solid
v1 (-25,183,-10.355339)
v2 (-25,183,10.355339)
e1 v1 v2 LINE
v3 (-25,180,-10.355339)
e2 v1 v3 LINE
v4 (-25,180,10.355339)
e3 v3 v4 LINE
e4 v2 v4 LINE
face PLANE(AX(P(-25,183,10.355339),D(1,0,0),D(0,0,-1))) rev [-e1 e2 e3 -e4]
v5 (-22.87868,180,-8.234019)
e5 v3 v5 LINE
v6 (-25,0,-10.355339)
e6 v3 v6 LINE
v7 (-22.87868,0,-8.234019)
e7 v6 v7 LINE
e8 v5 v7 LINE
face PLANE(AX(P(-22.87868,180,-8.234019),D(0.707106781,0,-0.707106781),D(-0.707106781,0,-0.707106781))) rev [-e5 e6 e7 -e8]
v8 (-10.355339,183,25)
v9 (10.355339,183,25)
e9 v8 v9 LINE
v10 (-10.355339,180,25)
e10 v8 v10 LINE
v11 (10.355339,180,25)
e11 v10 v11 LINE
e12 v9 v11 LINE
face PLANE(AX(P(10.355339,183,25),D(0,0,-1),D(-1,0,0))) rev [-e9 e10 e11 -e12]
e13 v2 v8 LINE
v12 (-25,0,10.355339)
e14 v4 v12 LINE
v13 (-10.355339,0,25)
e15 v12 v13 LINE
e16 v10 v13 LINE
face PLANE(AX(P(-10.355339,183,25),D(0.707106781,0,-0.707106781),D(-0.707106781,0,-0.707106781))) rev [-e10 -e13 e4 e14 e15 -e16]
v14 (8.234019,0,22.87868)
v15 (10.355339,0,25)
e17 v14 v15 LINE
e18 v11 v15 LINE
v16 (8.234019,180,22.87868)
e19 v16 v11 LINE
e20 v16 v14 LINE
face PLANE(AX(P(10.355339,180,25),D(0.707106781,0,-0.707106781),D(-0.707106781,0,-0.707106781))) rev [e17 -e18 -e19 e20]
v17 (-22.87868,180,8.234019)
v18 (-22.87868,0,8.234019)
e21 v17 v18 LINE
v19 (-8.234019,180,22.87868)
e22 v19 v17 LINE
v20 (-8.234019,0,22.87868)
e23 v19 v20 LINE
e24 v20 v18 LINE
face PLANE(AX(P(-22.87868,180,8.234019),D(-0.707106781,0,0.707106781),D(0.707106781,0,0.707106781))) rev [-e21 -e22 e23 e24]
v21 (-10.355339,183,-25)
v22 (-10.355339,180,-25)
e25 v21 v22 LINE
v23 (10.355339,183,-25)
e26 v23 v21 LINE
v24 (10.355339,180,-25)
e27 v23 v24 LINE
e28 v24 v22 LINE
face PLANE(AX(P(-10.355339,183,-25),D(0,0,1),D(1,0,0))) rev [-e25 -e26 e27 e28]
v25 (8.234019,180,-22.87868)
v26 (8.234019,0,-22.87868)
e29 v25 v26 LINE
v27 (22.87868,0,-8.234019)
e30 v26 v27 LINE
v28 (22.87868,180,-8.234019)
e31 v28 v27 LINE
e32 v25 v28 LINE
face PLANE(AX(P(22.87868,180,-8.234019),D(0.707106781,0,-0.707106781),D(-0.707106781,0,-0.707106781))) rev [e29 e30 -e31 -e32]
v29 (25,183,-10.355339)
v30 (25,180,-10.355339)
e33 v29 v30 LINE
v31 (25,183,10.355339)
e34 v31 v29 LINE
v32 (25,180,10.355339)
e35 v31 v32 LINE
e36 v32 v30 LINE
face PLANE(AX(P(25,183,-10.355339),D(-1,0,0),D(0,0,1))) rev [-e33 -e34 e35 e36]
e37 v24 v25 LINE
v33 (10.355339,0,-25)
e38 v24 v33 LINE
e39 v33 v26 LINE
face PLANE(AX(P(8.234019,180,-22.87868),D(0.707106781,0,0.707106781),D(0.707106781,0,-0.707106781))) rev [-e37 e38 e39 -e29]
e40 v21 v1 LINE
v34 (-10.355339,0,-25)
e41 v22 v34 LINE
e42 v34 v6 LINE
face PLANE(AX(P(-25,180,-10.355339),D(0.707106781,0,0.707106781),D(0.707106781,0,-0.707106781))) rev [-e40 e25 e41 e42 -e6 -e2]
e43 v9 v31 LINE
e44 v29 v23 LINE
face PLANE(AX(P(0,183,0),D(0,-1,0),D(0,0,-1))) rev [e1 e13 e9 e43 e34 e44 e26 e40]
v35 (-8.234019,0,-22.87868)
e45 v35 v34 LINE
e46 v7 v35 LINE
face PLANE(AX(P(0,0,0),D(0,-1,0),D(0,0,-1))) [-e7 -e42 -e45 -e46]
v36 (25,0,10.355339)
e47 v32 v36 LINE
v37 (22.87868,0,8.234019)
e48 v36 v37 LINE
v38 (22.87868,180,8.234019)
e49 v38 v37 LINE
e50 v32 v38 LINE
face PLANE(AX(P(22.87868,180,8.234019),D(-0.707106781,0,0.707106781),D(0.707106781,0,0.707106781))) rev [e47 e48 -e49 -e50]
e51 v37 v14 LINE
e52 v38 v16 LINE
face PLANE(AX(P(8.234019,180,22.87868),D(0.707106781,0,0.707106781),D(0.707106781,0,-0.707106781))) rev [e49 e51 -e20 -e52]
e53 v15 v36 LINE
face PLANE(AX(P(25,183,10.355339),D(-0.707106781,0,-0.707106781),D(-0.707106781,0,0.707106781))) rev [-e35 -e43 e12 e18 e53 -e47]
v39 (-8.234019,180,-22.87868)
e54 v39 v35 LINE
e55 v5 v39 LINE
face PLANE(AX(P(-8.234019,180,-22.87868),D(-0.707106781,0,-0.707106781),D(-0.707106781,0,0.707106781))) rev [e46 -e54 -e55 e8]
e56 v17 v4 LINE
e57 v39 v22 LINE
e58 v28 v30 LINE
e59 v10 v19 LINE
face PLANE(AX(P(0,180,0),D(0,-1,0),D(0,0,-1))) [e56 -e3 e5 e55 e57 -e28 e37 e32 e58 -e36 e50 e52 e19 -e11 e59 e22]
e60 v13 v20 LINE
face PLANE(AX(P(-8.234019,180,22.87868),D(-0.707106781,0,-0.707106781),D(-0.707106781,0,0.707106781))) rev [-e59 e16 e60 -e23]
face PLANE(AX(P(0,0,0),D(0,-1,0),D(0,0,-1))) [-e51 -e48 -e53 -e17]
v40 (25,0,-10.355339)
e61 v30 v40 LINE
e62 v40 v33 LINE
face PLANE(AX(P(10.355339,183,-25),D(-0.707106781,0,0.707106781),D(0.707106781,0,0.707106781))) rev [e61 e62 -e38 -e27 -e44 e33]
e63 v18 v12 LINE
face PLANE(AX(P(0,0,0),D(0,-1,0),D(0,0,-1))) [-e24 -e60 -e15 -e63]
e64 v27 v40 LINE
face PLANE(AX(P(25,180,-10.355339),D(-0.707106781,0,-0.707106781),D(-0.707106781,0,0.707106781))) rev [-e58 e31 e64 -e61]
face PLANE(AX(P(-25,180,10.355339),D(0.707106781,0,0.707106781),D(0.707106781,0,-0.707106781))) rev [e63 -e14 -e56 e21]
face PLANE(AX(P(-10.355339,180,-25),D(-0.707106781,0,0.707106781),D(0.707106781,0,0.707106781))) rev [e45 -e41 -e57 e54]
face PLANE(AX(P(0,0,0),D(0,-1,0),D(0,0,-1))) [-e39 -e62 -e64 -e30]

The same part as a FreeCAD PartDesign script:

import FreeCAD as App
import Part
import Sketcher
from FreeCAD import Vector
Q = App.Units.Quantity


def add_polygon(sketch, points):
    """Adds a closed chain of lines whose ends are joined by coincident constraints."""
    first, n = sketch.GeometryCount, len(points)
    for a, b in zip(points, points[1:] + points[:1]):
        sketch.addGeometry(Part.LineSegment(App.Vector(*a, 0), App.Vector(*b, 0)), False)
    for i in range(n):
        sketch.addConstraint(Sketcher.Constraint("Coincident", first + i, 2, first + (i + 1) % n, 1))

doc = App.newDocument("Part")
body = doc.addObject("PartDesign::Body", "Body")

# Sketch on XZ plane
sketch1 = body.newObject("Sketcher::SketchObject", "Sketch")
sketch1.AttachmentSupport = (doc.getObject("XZ_Plane"), [""])
sketch1.MapMode = "FlatFace"
add_polygon(sketch1, [(-10.355339, -25), (-25, -10.355339), (-22.87868, -8.234019), (-8.234019, -22.87868)])  # lines 0-3
sketch1.addConstraint([
    Sketcher.Constraint("Perpendicular", 0, 1),
    Sketcher.Constraint("Perpendicular", 1, 2),
    Sketcher.Constraint("Perpendicular", 2, 3),
    Sketcher.Constraint("Angle", 0, Q("135 deg")),
    Sketcher.Constraint("Distance", 1, 3.0),
    Sketcher.Constraint("DistanceX", 0, 2, -1, 1, 25.0),
    Sketcher.Constraint("DistanceY", 3, 2, -1, 1, 25.0),
    Sketcher.Constraint("Distance", 0, 20.710678),
])
pad1 = body.newObject("PartDesign::Pad", "Pad")
pad1.Profile = sketch1
pad1.Length = 180
pad1.Reversed = True
body2 = doc.addObject("PartDesign::Body", "Body001")

# Sketch on XZ plane
sketch2 = body2.newObject("Sketcher::SketchObject", "Sketch001")
sketch2.AttachmentSupport = (doc.getObject("XZ_Plane001"), [""])
sketch2.MapMode = "FlatFace"
add_polygon(sketch2, [(25, -10.355339), (10.355339, -25), (8.234019, -22.87868), (22.87868, -8.234019)])  # lines 0-3
sketch2.addConstraint([
    Sketcher.Constraint("Perpendicular", 0, 1),
    Sketcher.Constraint("Perpendicular", 1, 2),
    Sketcher.Constraint("Perpendicular", 2, 3),
    Sketcher.Constraint("Angle", 0, Q("-135 deg")),
    Sketcher.Constraint("Distance", 1, 3.0),
    Sketcher.Constraint("DistanceY", 0, 2, -1, 1, 25.0),
    Sketcher.Constraint("DistanceX", -1, 1, 3, 2, 25.0),
    Sketcher.Constraint("Distance", 0, 20.710678),
])
pad2 = body2.newObject("PartDesign::Pad", "Pad001")
pad2.Profile = sketch2
pad2.Length = 180
pad2.Reversed = True
body3 = doc.addObject("PartDesign::Body", "Body002")

# Sketch on XZ plane
sketch3 = body3.newObject("Sketcher::SketchObject", "Sketch002")
sketch3.AttachmentSupport = (doc.getObject("XZ_Plane002"), [""])
sketch3.MapMode = "FlatFace"
add_polygon(sketch3, [(10.355339, 25), (25, 10.355339), (22.87868, 8.234019), (8.234019, 22.87868)])  # lines 0-3
sketch3.addConstraint([
    Sketcher.Constraint("Perpendicular", 0, 1),
    Sketcher.Constraint("Perpendicular", 1, 2),
    Sketcher.Constraint("Perpendicular", 2, 3),
    Sketcher.Constraint("Angle", 0, Q("-45 deg")),
    Sketcher.Constraint("Distance", 1, 3.0),
    Sketcher.Constraint("DistanceX", -1, 1, 0, 2, 25.0),
    Sketcher.Constraint("DistanceY", -1, 1, 3, 2, 25.0),
    Sketcher.Constraint("Distance", 0, 20.710678),
])
pad3 = body3.newObject("PartDesign::Pad", "Pad002")
pad3.Profile = sketch3
pad3.Length = 180
pad3.Reversed = True
body4 = doc.addObject("PartDesign::Body", "Body003")

# Sketch on XZ plane
sketch4 = body4.newObject("Sketcher::SketchObject", "Sketch003")
sketch4.AttachmentSupport = (doc.getObject("XZ_Plane003"), [""])
sketch4.MapMode = "FlatFace"
add_polygon(sketch4, [(-25, 10.355339), (-10.355339, 25), (-8.234019, 22.87868), (-22.87868, 8.234019)])  # lines 0-3
sketch4.addConstraint([
    Sketcher.Constraint("Perpendicular", 0, 1),
    Sketcher.Constraint("Perpendicular", 1, 2),
    Sketcher.Constraint("Perpendicular", 2, 3),
    Sketcher.Constraint("Angle", 0, Q("45 deg")),
    Sketcher.Constraint("Distance", 1, 3.0),
    Sketcher.Constraint("DistanceY", -1, 1, 0, 2, 25.0),
    Sketcher.Constraint("DistanceX", 3, 2, -1, 1, 25.0),
    Sketcher.Constraint("Distance", 0, 20.710678),
])
pad4 = body4.newObject("PartDesign::Pad", "Pad003")
pad4.Profile = sketch4
pad4.Length = 180
pad4.Reversed = True
body.AllowCompound = True
doc.recompute()

boolean = body.newObject("PartDesign::Boolean", "Boolean")
boolean.Type = "Fuse"
boolean.addObjects([body2])
doc.recompute()

boolean2 = body.newObject("PartDesign::Boolean", "Boolean001")
boolean2.Type = "Fuse"
boolean2.addObjects([body3])
doc.recompute()

boolean3 = body.newObject("PartDesign::Boolean", "Boolean002")
boolean3.Type = "Fuse"
boolean3.addObjects([body4])

# Sketch on XZ plane
sketch5 = body.newObject("Sketcher::SketchObject", "Sketch004")
sketch5.AttachmentSupport = (doc.getObject("XZ_Plane"), [""])
sketch5.MapMode = "FlatFace"
sketch5.AttachmentOffset = App.Placement(Vector(0, 0, -180), App.Rotation())
add_polygon(sketch5, [(10.355339, -25), (-10.355339, -25), (-25, -10.355339), (-25, 10.355339), (-10.355339, 25), (10.355339, 25), (25, 10.355339), (25, -10.355339)])  # lines 0-7
sketch5.addConstraint([
    Sketcher.Constraint("Horizontal", 0),
    Sketcher.Constraint("Vertical", 2),
    Sketcher.Constraint("Horizontal", 4),
    Sketcher.Constraint("Vertical", 6),
    Sketcher.Constraint("Symmetric", 0, 2, 4, 2, -1, 1),
    Sketcher.Constraint("Symmetric", 1, 2, 5, 2, -1, 1),
    Sketcher.Constraint("Perpendicular", 1, 3),
    Sketcher.Constraint("Perpendicular", 5, 7),
    Sketcher.Constraint("Horizontal", 2, 2, 5, 2),
    Sketcher.Constraint("Horizontal", 1, 2, 6, 2),
    Sketcher.Constraint("Vertical", 0, 2, 3, 2),
    Sketcher.Constraint("Equal", 4, 2),
    Sketcher.Constraint("DistanceY", 0, 2, -1, 1, 25.0),
    Sketcher.Constraint("DistanceX", 0, 2, 0, 1, 20.710678),
])
pad5 = body.newObject("PartDesign::Pad", "Pad004")
pad5.Profile = sketch5
pad5.Length = 3
pad5.Reversed = True

doc.recompute()
